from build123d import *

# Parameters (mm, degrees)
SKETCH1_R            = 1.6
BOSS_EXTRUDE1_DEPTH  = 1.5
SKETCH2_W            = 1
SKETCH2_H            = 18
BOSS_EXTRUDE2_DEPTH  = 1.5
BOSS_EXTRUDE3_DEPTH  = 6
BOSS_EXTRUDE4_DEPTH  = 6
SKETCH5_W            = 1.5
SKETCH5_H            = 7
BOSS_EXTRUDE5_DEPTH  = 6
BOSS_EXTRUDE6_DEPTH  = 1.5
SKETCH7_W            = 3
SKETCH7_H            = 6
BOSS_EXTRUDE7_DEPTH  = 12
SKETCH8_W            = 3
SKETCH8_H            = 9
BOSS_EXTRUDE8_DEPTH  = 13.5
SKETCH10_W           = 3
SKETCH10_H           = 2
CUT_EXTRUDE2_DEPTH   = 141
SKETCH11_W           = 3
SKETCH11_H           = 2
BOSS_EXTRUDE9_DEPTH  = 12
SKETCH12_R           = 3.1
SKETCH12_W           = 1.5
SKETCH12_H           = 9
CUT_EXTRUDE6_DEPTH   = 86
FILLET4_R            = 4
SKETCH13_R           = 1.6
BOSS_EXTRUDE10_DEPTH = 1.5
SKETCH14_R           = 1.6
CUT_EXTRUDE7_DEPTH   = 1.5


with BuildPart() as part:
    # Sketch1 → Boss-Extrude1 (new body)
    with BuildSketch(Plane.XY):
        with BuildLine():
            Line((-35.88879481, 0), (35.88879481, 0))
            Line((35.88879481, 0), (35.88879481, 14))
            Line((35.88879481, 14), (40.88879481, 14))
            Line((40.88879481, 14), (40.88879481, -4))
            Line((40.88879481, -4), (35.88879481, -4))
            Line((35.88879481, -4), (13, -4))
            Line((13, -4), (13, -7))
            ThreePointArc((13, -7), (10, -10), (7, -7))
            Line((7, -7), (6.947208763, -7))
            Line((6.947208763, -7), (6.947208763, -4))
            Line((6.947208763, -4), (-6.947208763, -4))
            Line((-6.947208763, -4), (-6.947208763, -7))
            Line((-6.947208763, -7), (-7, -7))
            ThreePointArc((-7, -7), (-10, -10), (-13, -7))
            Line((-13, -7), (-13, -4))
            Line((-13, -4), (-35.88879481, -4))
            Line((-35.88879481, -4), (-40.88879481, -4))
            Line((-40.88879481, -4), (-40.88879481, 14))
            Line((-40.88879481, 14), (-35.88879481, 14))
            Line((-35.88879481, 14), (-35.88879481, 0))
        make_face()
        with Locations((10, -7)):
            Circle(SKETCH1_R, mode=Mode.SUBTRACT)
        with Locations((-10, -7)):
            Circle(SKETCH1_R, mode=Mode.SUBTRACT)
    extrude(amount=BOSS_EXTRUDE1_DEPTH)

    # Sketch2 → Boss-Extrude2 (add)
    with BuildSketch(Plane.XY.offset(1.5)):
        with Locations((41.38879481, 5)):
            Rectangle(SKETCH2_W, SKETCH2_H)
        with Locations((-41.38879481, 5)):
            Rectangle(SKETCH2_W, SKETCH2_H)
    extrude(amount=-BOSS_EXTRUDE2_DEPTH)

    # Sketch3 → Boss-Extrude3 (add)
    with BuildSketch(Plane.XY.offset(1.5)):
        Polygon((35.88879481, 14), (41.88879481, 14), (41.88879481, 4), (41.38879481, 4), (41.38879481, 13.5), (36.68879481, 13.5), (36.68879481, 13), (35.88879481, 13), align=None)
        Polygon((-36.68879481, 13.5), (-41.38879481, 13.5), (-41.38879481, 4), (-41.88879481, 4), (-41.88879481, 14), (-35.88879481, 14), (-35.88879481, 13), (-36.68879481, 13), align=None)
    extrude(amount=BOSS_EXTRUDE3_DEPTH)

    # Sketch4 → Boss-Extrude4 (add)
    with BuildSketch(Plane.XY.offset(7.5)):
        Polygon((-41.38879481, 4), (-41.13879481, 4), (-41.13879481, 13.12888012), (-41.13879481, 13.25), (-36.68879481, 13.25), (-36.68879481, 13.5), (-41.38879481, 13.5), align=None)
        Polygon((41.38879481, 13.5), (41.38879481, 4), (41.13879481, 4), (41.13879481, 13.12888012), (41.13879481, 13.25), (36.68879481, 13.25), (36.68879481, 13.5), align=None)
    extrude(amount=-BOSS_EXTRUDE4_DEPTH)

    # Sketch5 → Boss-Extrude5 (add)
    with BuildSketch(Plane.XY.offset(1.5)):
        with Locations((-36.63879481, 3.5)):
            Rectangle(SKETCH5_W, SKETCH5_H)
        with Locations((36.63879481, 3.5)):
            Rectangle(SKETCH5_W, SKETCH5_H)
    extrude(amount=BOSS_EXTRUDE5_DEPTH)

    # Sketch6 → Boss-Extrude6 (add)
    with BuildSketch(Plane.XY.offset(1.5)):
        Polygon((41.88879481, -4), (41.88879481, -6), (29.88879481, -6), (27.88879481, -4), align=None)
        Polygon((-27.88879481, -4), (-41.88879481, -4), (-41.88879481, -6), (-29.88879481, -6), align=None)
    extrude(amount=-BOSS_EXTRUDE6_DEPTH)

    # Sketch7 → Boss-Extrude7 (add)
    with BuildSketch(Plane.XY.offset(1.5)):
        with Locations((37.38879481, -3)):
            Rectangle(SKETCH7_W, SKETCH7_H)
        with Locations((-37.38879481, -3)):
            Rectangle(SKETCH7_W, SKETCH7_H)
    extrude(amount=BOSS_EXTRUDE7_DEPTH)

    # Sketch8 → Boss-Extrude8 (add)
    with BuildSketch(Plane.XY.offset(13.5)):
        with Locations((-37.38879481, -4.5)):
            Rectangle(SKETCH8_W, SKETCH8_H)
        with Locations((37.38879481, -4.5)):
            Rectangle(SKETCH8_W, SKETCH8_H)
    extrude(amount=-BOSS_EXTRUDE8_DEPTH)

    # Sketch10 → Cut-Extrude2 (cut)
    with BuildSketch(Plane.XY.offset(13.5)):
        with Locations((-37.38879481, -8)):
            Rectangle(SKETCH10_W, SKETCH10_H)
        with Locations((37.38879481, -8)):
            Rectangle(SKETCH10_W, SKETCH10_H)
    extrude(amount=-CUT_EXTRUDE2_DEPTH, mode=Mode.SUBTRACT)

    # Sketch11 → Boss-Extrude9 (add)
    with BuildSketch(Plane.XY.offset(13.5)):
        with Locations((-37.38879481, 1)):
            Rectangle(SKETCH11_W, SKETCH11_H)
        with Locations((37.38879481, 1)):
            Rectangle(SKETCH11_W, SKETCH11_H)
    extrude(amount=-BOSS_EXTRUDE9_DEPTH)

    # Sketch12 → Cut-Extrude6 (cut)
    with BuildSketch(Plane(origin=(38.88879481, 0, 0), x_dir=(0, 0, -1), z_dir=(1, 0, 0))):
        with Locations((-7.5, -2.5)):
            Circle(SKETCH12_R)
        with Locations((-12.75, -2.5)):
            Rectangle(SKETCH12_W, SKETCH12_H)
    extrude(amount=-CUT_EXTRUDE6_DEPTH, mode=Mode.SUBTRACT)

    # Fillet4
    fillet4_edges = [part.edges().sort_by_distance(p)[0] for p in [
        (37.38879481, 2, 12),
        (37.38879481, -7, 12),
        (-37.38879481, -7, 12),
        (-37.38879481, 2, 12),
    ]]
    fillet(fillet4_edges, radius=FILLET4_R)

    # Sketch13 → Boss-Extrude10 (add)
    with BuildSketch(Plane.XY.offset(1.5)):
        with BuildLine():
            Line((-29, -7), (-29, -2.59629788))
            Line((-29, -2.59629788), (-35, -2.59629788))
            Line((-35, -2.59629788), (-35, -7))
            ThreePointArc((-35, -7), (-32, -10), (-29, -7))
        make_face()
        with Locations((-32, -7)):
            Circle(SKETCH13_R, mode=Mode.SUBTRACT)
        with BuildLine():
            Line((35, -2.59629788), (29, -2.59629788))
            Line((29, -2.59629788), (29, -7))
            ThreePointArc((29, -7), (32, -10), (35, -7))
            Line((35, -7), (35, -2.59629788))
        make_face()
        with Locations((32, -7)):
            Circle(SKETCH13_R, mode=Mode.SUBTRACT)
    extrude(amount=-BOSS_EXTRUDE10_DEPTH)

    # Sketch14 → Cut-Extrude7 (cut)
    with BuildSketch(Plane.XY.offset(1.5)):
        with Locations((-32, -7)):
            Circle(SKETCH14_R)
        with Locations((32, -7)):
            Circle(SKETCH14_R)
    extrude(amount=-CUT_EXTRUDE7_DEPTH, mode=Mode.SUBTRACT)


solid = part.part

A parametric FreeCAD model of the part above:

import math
import FreeCAD as App
import Part
import Sketcher

V = App.Vector
Q = App.Units.Quantity


def edges_at(feature, points):
    """Names of the edges that pass closest to the given points."""
    edges = feature.Shape.Edges
    near = lambda p: min(range(len(edges)), key=lambda i: edges[i].distToShape(Part.Vertex(*p))[0])
    return sorted({f"Edge{near(p) + 1}" for p in points})

doc = App.newDocument("Part")
body = doc.addObject("PartDesign::Body", "Body")

sketch1 = body.newObject("Sketcher::SketchObject", "Sketch")
sketch1.AttachmentSupport = (doc.getObject("XY_Plane"), [""])
sketch1.MapMode = "FlatFace"
sketch1.addGeometry([
    Part.LineSegment(V(35.89, 0, 0), V(-35.89, 0, 0)),
    Part.LineSegment(V(-35.89, 0, 0), V(-35.89, 14, 0)),
    Part.LineSegment(V(-35.89, 14, 0), V(-40.89, 14, 0)),
    Part.LineSegment(V(-40.89, 14, 0), V(-40.89, -4, 0)),
    Part.LineSegment(V(-40.89, -4, 0), V(-13, -4, 0)),
    Part.LineSegment(V(-13, -4, 0), V(-13, -7, 0)),
    Part.ArcOfCircle(Part.Circle(V(-10, -7, 0), V(0, 0, 1), 3), math.radians(180), math.radians(360)),
    Part.LineSegment(V(-7, -7, 0), V(-6.95, -7, 0)),
    Part.LineSegment(V(-6.95, -7, 0), V(-6.95, -4, 0)),
    Part.LineSegment(V(-6.95, -4, 0), V(6.95, -4, 0)),
    Part.LineSegment(V(6.95, -4, 0), V(6.95, -7, 0)),
    Part.LineSegment(V(6.95, -7, 0), V(7, -7, 0)),
    Part.ArcOfCircle(Part.Circle(V(10, -7, 0), V(0, 0, 1), 3), math.radians(180), math.radians(360)),
    Part.LineSegment(V(13, -7, 0), V(13, -4, 0)),
    Part.LineSegment(V(13, -4, 0), V(40.89, -4, 0)),
    Part.LineSegment(V(40.89, -4, 0), V(40.89, 14, 0)),
    Part.LineSegment(V(40.89, 14, 0), V(35.89, 14, 0)),
    Part.LineSegment(V(35.89, 14, 0), V(35.89, 0, 0)),
    Part.Circle(V(10, -7, 0), V(0, 0, 1), 1.6),
    Part.Circle(V(-10, -7, 0), V(0, 0, 1), 1.6),
], False)
sketch1.addConstraint([
    Sketcher.Constraint("Coincident", 0, 2, 1, 1),
    Sketcher.Constraint("Coincident", 1, 2, 2, 1),
    Sketcher.Constraint("Coincident", 2, 2, 3, 1),
    Sketcher.Constraint("Coincident", 3, 2, 4, 1),
    Sketcher.Constraint("Coincident", 4, 2, 5, 1),
    Sketcher.Constraint("Tangent", 5, 2, 6, 1),
    Sketcher.Constraint("Coincident", 6, 2, 7, 1),
    Sketcher.Constraint("Coincident", 7, 2, 8, 1),
    Sketcher.Constraint("Coincident", 8, 2, 9, 1),
    Sketcher.Constraint("Coincident", 9, 2, 10, 1),
    Sketcher.Constraint("Coincident", 10, 2, 11, 1),
    Sketcher.Constraint("Coincident", 11, 2, 12, 1),
    Sketcher.Constraint("Tangent", 12, 2, 13, 1),
    Sketcher.Constraint("Coincident", 13, 2, 14, 1),
    Sketcher.Constraint("Coincident", 14, 2, 15, 1),
    Sketcher.Constraint("Coincident", 15, 2, 16, 1),
    Sketcher.Constraint("Coincident", 16, 2, 17, 1),
    Sketcher.Constraint("Coincident", 17, 2, 0, 1),
    Sketcher.Constraint("Horizontal", 0),
    Sketcher.Constraint("Vertical", 1),
    Sketcher.Constraint("Horizontal", 2),
    Sketcher.Constraint("Vertical", 3),
    Sketcher.Constraint("Horizontal", 4),
    Sketcher.Constraint("Vertical", 5),
    Sketcher.Constraint("Horizontal", 7),
    Sketcher.Constraint("Vertical", 8),
    Sketcher.Constraint("Horizontal", 9),
    Sketcher.Constraint("Vertical", 10),
    Sketcher.Constraint("Horizontal", 11),
    Sketcher.Constraint("Vertical", 13),
    Sketcher.Constraint("Horizontal", 14),
    Sketcher.Constraint("Vertical", 15),
    Sketcher.Constraint("Horizontal", 16),
    Sketcher.Constraint("Vertical", 17),
    Sketcher.Constraint("Coincident", 18, 3, 12, 3),
    Sketcher.Constraint("Coincident", 19, 3, 6, 3),
    Sketcher.Constraint("Equal", 6, 12),
    Sketcher.Constraint("Equal", 18, 19),
    Sketcher.Constraint("Symmetric", 0, 2, 17, 2, -1, 1),
    Sketcher.Constraint("Symmetric", 6, 3, 12, 3, -2),
    Sketcher.Constraint("Symmetric", 7, 2, 10, 2, -2),
    Sketcher.Constraint("Symmetric", 3, 2, 14, 2, -2),
    Sketcher.Constraint("Horizontal", 5, 2, 6, 2),
    Sketcher.Constraint("Horizontal", 4, 2, 8, 2),
    Sketcher.Constraint("Horizontal", 2, 2, 15, 2),
    Sketcher.Constraint("Radius", 6, Q("3 mm")),
    Sketcher.Constraint("Diameter", 18, Q("3.2 mm")),
    Sketcher.Constraint("DistanceX", 2, 2, 2, 1, Q("5 mm")),
    Sketcher.Constraint("DistanceY", 1, 1, 1, 2, Q("14 mm")),
    Sketcher.Constraint("DistanceY", 3, 2, 3, 1, Q("18 mm")),
    Sketcher.Constraint("DistanceY", 5, 2, 5, 1, Q("3 mm")),
    Sketcher.Constraint("DistanceX", 6, 3, -1, 1, Q("10 mm")),
    Sketcher.Constraint("DistanceX", 0, 2, 0, 1, Q("71.77759 mm")),
    Sketcher.Constraint("DistanceX", 7, 1, 7, 2, Q("0.052791 mm")),
])
pad1 = body.newObject("PartDesign::Pad", "Pad")
pad1.Profile = sketch1
pad1.Length = 1.5

sketch2 = body.newObject("Sketcher::SketchObject", "Sketch001")
sketch2.AttachmentSupport = (doc.getObject("XY_Plane"), [""])
sketch2.MapMode = "FlatFace"
sketch2.AttachmentOffset = App.Placement(V(0, 0, 1.5), App.Rotation())
sketch2.addGeometry([
    Part.LineSegment(V(40.9, 14, 0), V(40.9, -4, 0)),
    Part.LineSegment(V(40.9, -4, 0), V(41.9, -4, 0)),
    Part.LineSegment(V(41.9, -4, 0), V(41.9, 14, 0)),
    Part.LineSegment(V(41.9, 14, 0), V(40.9, 14, 0)),
    Part.LineSegment(V(-41.9, 14, 0), V(-41.9, -4, 0)),
    Part.LineSegment(V(-41.9, -4, 0), V(-40.9, -4, 0)),
    Part.LineSegment(V(-40.9, -4, 0), V(-40.9, 14, 0)),
    Part.LineSegment(V(-40.9, 14, 0), V(-41.9, 14, 0)),
], False)
sketch2.addConstraint([
    Sketcher.Constraint("Coincident", 0, 2, 1, 1),
    Sketcher.Constraint("Coincident", 1, 2, 2, 1),
    Sketcher.Constraint("Coincident", 2, 2, 3, 1),
    Sketcher.Constraint("Coincident", 3, 2, 0, 1),
    Sketcher.Constraint("Coincident", 4, 2, 5, 1),
    Sketcher.Constraint("Coincident", 5, 2, 6, 1),
    Sketcher.Constraint("Coincident", 6, 2, 7, 1),
    Sketcher.Constraint("Coincident", 7, 2, 4, 1),
    Sketcher.Constraint("Vertical", 0),
    Sketcher.Constraint("Horizontal", 1),
    Sketcher.Constraint("Vertical", 2),
    Sketcher.Constraint("Horizontal", 3),
    Sketcher.Constraint("Vertical", 4),
    Sketcher.Constraint("Horizontal", 5),
    Sketcher.Constraint("Vertical", 6),
    Sketcher.Constraint("Horizontal", 7),
    Sketcher.Constraint("Symmetric", 1, 2, 4, 2, -2),
    Sketcher.Constraint("Symmetric", 3, 2, 6, 2, -2),
    Sketcher.Constraint("DistanceX", 1, 1, 1, 2, Q("1 mm")),
    Sketcher.Constraint("DistanceY", 0, 2, 0, 1, Q("18 mm")),
    Sketcher.Constraint("DistanceY", 0, 2, -1, 1, Q("4 mm")),
    Sketcher.Constraint("DistanceX", 4, 2, 0, 2, Q("82.77759 mm")),
])
pad2 = body.newObject("PartDesign::Pad", "Pad001")
pad2.Profile = sketch2
pad2.Length = 1.5
pad2.Reversed = True

sketch3 = body.newObject("Sketcher::SketchObject", "Sketch002")
sketch3.AttachmentSupport = (doc.getObject("XY_Plane"), [""])
sketch3.MapMode = "FlatFace"
sketch3.AttachmentOffset = App.Placement(V(0, 0, 1.5), App.Rotation())
sketch3.addGeometry([
    Part.LineSegment(V(41.9, 14, 0), V(35.9, 14, 0)),
    Part.LineSegment(V(35.9, 14, 0), V(35.9, 13, 0)),
    Part.LineSegment(V(35.9, 13, 0), V(36.7, 13, 0)),
    Part.LineSegment(V(36.7, 13, 0), V(36.7, 13.5, 0)),
    Part.LineSegment(V(36.7, 13.5, 0), V(41.4, 13.5, 0)),
    Part.LineSegment(V(41.4, 13.5, 0), V(41.4, 4, 0)),
    Part.LineSegment(V(41.4, 4, 0), V(41.9, 4, 0)),
    Part.LineSegment(V(41.9, 4, 0), V(41.9, 14, 0)),
    Part.LineSegment(V(-41.4, 13.5, 0), V(-36.7, 13.5, 0)),
    Part.LineSegment(V(-36.7, 13.5, 0), V(-36.7, 13, 0)),
    Part.LineSegment(V(-36.7, 13, 0), V(-35.9, 13, 0)),
    Part.LineSegment(V(-35.9, 13, 0), V(-35.9, 14, 0)),
    Part.LineSegment(V(-35.9, 14, 0), V(-41.9, 14, 0)),
    Part.LineSegment(V(-41.9, 14, 0), V(-41.9, 4, 0)),
    Part.LineSegment(V(-41.9, 4, 0), V(-41.4, 4, 0)),
    Part.LineSegment(V(-41.4, 4, 0), V(-41.4, 13.5, 0)),
], False)
sketch3.addConstraint([
    Sketcher.Constraint("Coincident", 0, 2, 1, 1),
    Sketcher.Constraint("Coincident", 1, 2, 2, 1),
    Sketcher.Constraint("Coincident", 2, 2, 3, 1),
    Sketcher.Constraint("Coincident", 3, 2, 4, 1),
    Sketcher.Constraint("Coincident", 4, 2, 5, 1),
    Sketcher.Constraint("Coincident", 5, 2, 6, 1),
    Sketcher.Constraint("Coincident", 6, 2, 7, 1),
    Sketcher.Constraint("Coincident", 7, 2, 0, 1),
    Sketcher.Constraint("Coincident", 8, 2, 9, 1),
    Sketcher.Constraint("Coincident", 9, 2, 10, 1),
    Sketcher.Constraint("Coincident", 10, 2, 11, 1),
    Sketcher.Constraint("Coincident", 11, 2, 12, 1),
    Sketcher.Constraint("Coincident", 12, 2, 13, 1),
    Sketcher.Constraint("Coincident", 13, 2, 14, 1),
    Sketcher.Constraint("Coincident", 14, 2, 15, 1),
    Sketcher.Constraint("Coincident", 15, 2, 8, 1),
    Sketcher.Constraint("Horizontal", 0),
    Sketcher.Constraint("Vertical", 1),
    Sketcher.Constraint("Horizontal", 2),
    Sketcher.Constraint("Vertical", 3),
    Sketcher.Constraint("Horizontal", 4),
    Sketcher.Constraint("Vertical", 5),
    Sketcher.Constraint("Horizontal", 6),
    Sketcher.Constraint("Vertical", 7),
    Sketcher.Constraint("Horizontal", 8),
    Sketcher.Constraint("Vertical", 9),
    Sketcher.Constraint("Horizontal", 10),
    Sketcher.Constraint("Vertical", 11),
    Sketcher.Constraint("Horizontal", 12),
    Sketcher.Constraint("Vertical", 13),
    Sketcher.Constraint("Horizontal", 14),
    Sketcher.Constraint("Vertical", 15),
    Sketcher.Constraint("Symmetric", 3, 2, 8, 2, -2),
    Sketcher.Constraint("Symmetric", 1, 2, 10, 2, -2),
    Sketcher.Constraint("Symmetric", 7, 2, 12, 2, -2),
    Sketcher.Constraint("Symmetric", 5, 2, 14, 2, -2),
    Sketcher.Constraint("Equal", 14, 3),
    Sketcher.Constraint("DistanceX", 0, 2, 0, 1, Q("6 mm")),
    Sketcher.Constraint("DistanceY", 1, 2, 1, 1, Q("1 mm")),
    Sketcher.Constraint("DistanceY", 7, 1, 7, 2, Q("10 mm")),
    Sketcher.Constraint("DistanceX", 2, 1, 2, 2, Q("0.8 mm")),
    Sketcher.Constraint("DistanceX", 4, 1, 4, 2, Q("4.7 mm")),
    Sketcher.Constraint("DistanceY", -1, 1, 0, 2, Q("14 mm")),
    Sketcher.Constraint("DistanceX", 8, 2, 0, 2, Q("72.57759 mm")),
])
pad3 = body.newObject("PartDesign::Pad", "Pad002")
pad3.Profile = sketch3
pad3.Length = 6

sketch4 = body.newObject("Sketcher::SketchObject", "Sketch003")
sketch4.AttachmentSupport = (doc.getObject("XY_Plane"), [""])
sketch4.MapMode = "FlatFace"
sketch4.AttachmentOffset = App.Placement(V(0, 0, 7.5), App.Rotation())
sketch4.addGeometry([
    Part.LineSegment(V(-41.39, 4, 0), V(-41.14, 4, 0)),
    Part.LineSegment(V(-41.14, 4, 0), V(-41.14, 13.25, 0)),
    Part.LineSegment(V(-41.14, 13.25, 0), V(-36.69, 13.25, 0)),
    Part.LineSegment(V(-36.69, 13.25, 0), V(-36.69, 13.5, 0)),
    Part.LineSegment(V(-36.69, 13.5, 0), V(-41.39, 13.5, 0)),
    Part.LineSegment(V(-41.39, 13.5, 0), V(-41.39, 4, 0)),
    Part.LineSegment(V(41.39, 4, 0), V(41.39, 13.5, 0)),
    Part.LineSegment(V(41.39, 13.5, 0), V(36.69, 13.5, 0)),
    Part.LineSegment(V(36.69, 13.5, 0), V(36.69, 13.25, 0)),
    Part.LineSegment(V(36.69, 13.25, 0), V(41.14, 13.25, 0)),
    Part.LineSegment(V(41.14, 13.25, 0), V(41.14, 4, 0)),
    Part.LineSegment(V(41.14, 4, 0), V(41.39, 4, 0)),
], False)
sketch4.addConstraint([
    Sketcher.Constraint("Coincident", 0, 2, 1, 1),
    Sketcher.Constraint("Coincident", 1, 2, 2, 1),
    Sketcher.Constraint("Coincident", 2, 2, 3, 1),
    Sketcher.Constraint("Coincident", 3, 2, 4, 1),
    Sketcher.Constraint("Coincident", 4, 2, 5, 1),
    Sketcher.Constraint("Coincident", 5, 2, 0, 1),
    Sketcher.Constraint("Coincident", 6, 2, 7, 1),
    Sketcher.Constraint("Coincident", 7, 2, 8, 1),
    Sketcher.Constraint("Coincident", 8, 2, 9, 1),
    Sketcher.Constraint("Coincident", 9, 2, 10, 1),
    Sketcher.Constraint("Coincident", 10, 2, 11, 1),
    Sketcher.Constraint("Coincident", 11, 2, 6, 1),
    Sketcher.Constraint("Horizontal", 0),
    Sketcher.Constraint("Vertical", 1),
    Sketcher.Constraint("Horizontal", 2),
    Sketcher.Constraint("Vertical", 3),
    Sketcher.Constraint("Horizontal", 4),
    Sketcher.Constraint("Vertical", 5),
    Sketcher.Constraint("Vertical", 6),
    Sketcher.Constraint("Horizontal", 7),
    Sketcher.Constraint("Vertical", 8),
    Sketcher.Constraint("Horizontal", 9),
    Sketcher.Constraint("Vertical", 10),
    Sketcher.Constraint("Horizontal", 11),
    Sketcher.Constraint("Symmetric", 4, 2, 6, 2, -2),
    Sketcher.Constraint("Symmetric", 2, 2, 8, 2, -2),
    Sketcher.Constraint("Symmetric", 0, 2, 10, 2, -2),
    Sketcher.Constraint("Equal", 11, 3),
    Sketcher.Constraint("DistanceX", 4, 2, 4, 1, Q("4.7 mm")),
    Sketcher.Constraint("DistanceY", 5, 2, 5, 1, Q("9.5 mm")),
    Sketcher.Constraint("DistanceY", -1, 1, 0, 2, Q("4 mm")),
    Sketcher.Constraint("DistanceX", 0, 1, 0, 2, Q("0.25 mm")),
    Sketcher.Constraint("DistanceX", 3, 2, 6, 2, Q("78.07759 mm")),
])
pad4 = body.newObject("PartDesign::Pad", "Pad003")
pad4.Profile = sketch4
pad4.Length = 6
pad4.Reversed = True

sketch5 = body.newObject("Sketcher::SketchObject", "Sketch004")
sketch5.AttachmentSupport = (doc.getObject("XY_Plane"), [""])
sketch5.MapMode = "FlatFace"
sketch5.AttachmentOffset = App.Placement(V(0, 0, 1.5), App.Rotation())
sketch5.addGeometry([
    Part.LineSegment(V(-37.4, 7, 0), V(-37.4, 0, 0)),
    Part.LineSegment(V(-37.4, 0, 0), V(-35.9, 0, 0)),
    Part.LineSegment(V(-35.9, 0, 0), V(-35.9, 7, 0)),
    Part.LineSegment(V(-35.9, 7, 0), V(-37.4, 7, 0)),
    Part.LineSegment(V(35.9, 7, 0), V(35.9, 0, 0)),
    Part.LineSegment(V(35.9, 0, 0), V(37.4, 0, 0)),
    Part.LineSegment(V(37.4, 0, 0), V(37.4, 7, 0)),
    Part.LineSegment(V(37.4, 7, 0), V(35.9, 7, 0)),
], False)
sketch5.addConstraint([
    Sketcher.Constraint("Coincident", 0, 2, 1, 1),
    Sketcher.Constraint("Coincident", 1, 2, 2, 1),
    Sketcher.Constraint("Coincident", 2, 2, 3, 1),
    Sketcher.Constraint("Coincident", 3, 2, 0, 1),
    Sketcher.Constraint("Coincident", 4, 2, 5, 1),
    Sketcher.Constraint("Coincident", 5, 2, 6, 1),
    Sketcher.Constraint("Coincident", 6, 2, 7, 1),
    Sketcher.Constraint("Coincident", 7, 2, 4, 1),
    Sketcher.Constraint("Vertical", 0),
    Sketcher.Constraint("Horizontal", 1),
    Sketcher.Constraint("Vertical", 2),
    Sketcher.Constraint("Horizontal", 3),
    Sketcher.Constraint("Vertical", 4),
    Sketcher.Constraint("Horizontal", 5),
    Sketcher.Constraint("Vertical", 6),
    Sketcher.Constraint("Horizontal", 7),
    Sketcher.Constraint("Symmetric", 1, 2, 4, 2, -1, 1),
    Sketcher.Constraint("Symmetric", 0, 2, 5, 2, -2),
    Sketcher.Constraint("Horizontal", 3, 2, 6, 2),
    Sketcher.Constraint("DistanceY", 0, 2, 0, 1, Q("7 mm")),
    Sketcher.Constraint("DistanceX", 1, 1, 1, 2, Q("1.5 mm")),
    Sketcher.Constraint("DistanceX", 1, 2, 4, 2, Q("71.77759 mm")),
])
pad5 = body.newObject("PartDesign::Pad", "Pad004")
pad5.Profile = sketch5
pad5.Length = 6

sketch6 = body.newObject("Sketcher::SketchObject", "Sketch005")
sketch6.AttachmentSupport = (doc.getObject("XY_Plane"), [""])
sketch6.MapMode = "FlatFace"
sketch6.AttachmentOffset = App.Placement(V(0, 0, 1.5), App.Rotation())
sketch6.addGeometry([
    Part.LineSegment(V(41.9, -6, 0), V(41.9, -4, 0)),
    Part.LineSegment(V(41.9, -4, 0), V(27.9, -4, 0)),
    Part.LineSegment(V(27.9, -4, 0), V(29.9, -6, 0)),
    Part.LineSegment(V(29.9, -6, 0), V(41.9, -6, 0)),
    Part.LineSegment(V(-27.9, -4, 0), V(-41.9, -4, 0)),
    Part.LineSegment(V(-41.9, -4, 0), V(-41.9, -6, 0)),
    Part.LineSegment(V(-41.9, -6, 0), V(-29.9, -6, 0)),
    Part.LineSegment(V(-29.9, -6, 0), V(-27.9, -4, 0)),
], False)
sketch6.addConstraint([
    Sketcher.Constraint("Coincident", 0, 2, 1, 1),
    Sketcher.Constraint("Coincident", 1, 2, 2, 1),
    Sketcher.Constraint("Coincident", 2, 2, 3, 1),
    Sketcher.Constraint("Coincident", 3, 2, 0, 1),
    Sketcher.Constraint("Coincident", 4, 2, 5, 1),
    Sketcher.Constraint("Coincident", 5, 2, 6, 1),
    Sketcher.Constraint("Coincident", 6, 2, 7, 1),
    Sketcher.Constraint("Coincident", 7, 2, 4, 1),
    Sketcher.Constraint("Vertical", 0),
    Sketcher.Constraint("Horizontal", 1),
    Sketcher.Constraint("Horizontal", 3),
    Sketcher.Constraint("Horizontal", 4),
    Sketcher.Constraint("Vertical", 5),
    Sketcher.Constraint("Horizontal", 6),
    Sketcher.Constraint("Symmetric", 0, 2, 4, 2, -2),
    Sketcher.Constraint("Symmetric", 2, 2, 6, 2, -2),
    Sketcher.Constraint("Perpendicular", 2, 7),
    Sketcher.Constraint("Equal", 1, 4),
    Sketcher.Constraint("DistanceX", 1, 2, 1, 1, Q("14 mm")),
    Sketcher.Constraint("DistanceX", 3, 1, 3, 2, Q("12 mm")),
    Sketcher.Constraint("DistanceY", 0, 2, -1, 1, Q("4 mm")),
    Sketcher.Constraint("DistanceX", 4, 2, 1, 2, Q("69.77759 mm")),
])
pad6 = body.newObject("PartDesign::Pad", "Pad005")
pad6.Profile = sketch6
pad6.Length = 1.5
pad6.Reversed = True

sketch7 = body.newObject("Sketcher::SketchObject", "Sketch006")
sketch7.AttachmentSupport = (doc.getObject("XY_Plane"), [""])
sketch7.MapMode = "FlatFace"
sketch7.AttachmentOffset = App.Placement(V(0, 0, 1.5), App.Rotation())
sketch7.addGeometry([
    Part.LineSegment(V(35.9, 0, 0), V(35.9, -6, 0)),
    Part.LineSegment(V(35.9, -6, 0), V(38.9, -6, 0)),
    Part.LineSegment(V(38.9, -6, 0), V(38.9, 0, 0)),
    Part.LineSegment(V(38.9, 0, 0), V(35.9, 0, 0)),
    Part.LineSegment(V(-38.9, 0, 0), V(-38.9, -6, 0)),
    Part.LineSegment(V(-38.9, -6, 0), V(-35.9, -6, 0)),
    Part.LineSegment(V(-35.9, -6, 0), V(-35.9, 0, 0)),
    Part.LineSegment(V(-35.9, 0, 0), V(-38.9, 0, 0)),
], False)
sketch7.addConstraint([
    Sketcher.Constraint("Coincident", 0, 2, 1, 1),
    Sketcher.Constraint("Coincident", 1, 2, 2, 1),
    Sketcher.Constraint("Coincident", 2, 2, 3, 1),
    Sketcher.Constraint("Coincident", 3, 2, 0, 1),
    Sketcher.Constraint("Coincident", 4, 2, 5, 1),
    Sketcher.Constraint("Coincident", 5, 2, 6, 1),
    Sketcher.Constraint("Coincident", 6, 2, 7, 1),
    Sketcher.Constraint("Coincident", 7, 2, 4, 1),
    Sketcher.Constraint("Vertical", 0),
    Sketcher.Constraint("Horizontal", 1),
    Sketcher.Constraint("Vertical", 2),
    Sketcher.Constraint("Horizontal", 3),
    Sketcher.Constraint("Vertical", 4),
    Sketcher.Constraint("Horizontal", 5),
    Sketcher.Constraint("Vertical", 6),
    Sketcher.Constraint("Horizontal", 7),
    Sketcher.Constraint("Symmetric", 3, 2, 6, 2, -1, 1),
    Sketcher.Constraint("Symmetric", 1, 2, 4, 2, -2),
    Sketcher.Constraint("PointOnObject", 2, 2, -1),
    Sketcher.Constraint("DistanceX", 1, 1, 1, 2, Q("3 mm")),
    Sketcher.Constraint("DistanceY", 0, 2, 0, 1, Q("6 mm")),
    Sketcher.Constraint("DistanceX", 4, 2, 0, 2, Q("74.77759 mm")),
])
pad7 = body.newObject("PartDesign::Pad", "Pad006")
pad7.Profile = sketch7
pad7.Length = 12

sketch8 = body.newObject("Sketcher::SketchObject", "Sketch007")
sketch8.AttachmentSupport = (doc.getObject("XY_Plane"), [""])
sketch8.MapMode = "FlatFace"
sketch8.AttachmentOffset = App.Placement(V(0, 0, 13.5), App.Rotation())
sketch8.addGeometry([
    Part.LineSegment(V(-38.9, 0, 0), V(-38.9, -9, 0)),
    Part.LineSegment(V(-38.9, -9, 0), V(-35.9, -9, 0)),
    Part.LineSegment(V(-35.9, -9, 0), V(-35.9, 0, 0)),
    Part.LineSegment(V(-35.9, 0, 0), V(-38.9, 0, 0)),
    Part.LineSegment(V(35.9, 0, 0), V(35.9, -9, 0)),
    Part.LineSegment(V(35.9, -9, 0), V(38.9, -9, 0)),
    Part.LineSegment(V(38.9, -9, 0), V(38.9, 0, 0)),
    Part.LineSegment(V(38.9, 0, 0), V(35.9, 0, 0)),
], False)
sketch8.addConstraint([
    Sketcher.Constraint("Coincident", 0, 2, 1, 1),
    Sketcher.Constraint("Coincident", 1, 2, 2, 1),
    Sketcher.Constraint("Coincident", 2, 2, 3, 1),
    Sketcher.Constraint("Coincident", 3, 2, 0, 1),
    Sketcher.Constraint("Coincident", 4, 2, 5, 1),
    Sketcher.Constraint("Coincident", 5, 2, 6, 1),
    Sketcher.Constraint("Coincident", 6, 2, 7, 1),
    Sketcher.Constraint("Coincident", 7, 2, 4, 1),
    Sketcher.Constraint("Vertical", 0),
    Sketcher.Constraint("Horizontal", 1),
    Sketcher.Constraint("Vertical", 2),
    Sketcher.Constraint("Horizontal", 3),
    Sketcher.Constraint("Vertical", 4),
    Sketcher.Constraint("Horizontal", 5),
    Sketcher.Constraint("Vertical", 6),
    Sketcher.Constraint("Horizontal", 7),
    Sketcher.Constraint("Symmetric", 3, 2, 6, 2, -1, 1),
    Sketcher.Constraint("Symmetric", 1, 2, 4, 2, -2),
    Sketcher.Constraint("PointOnObject", 2, 2, -1),
    Sketcher.Constraint("DistanceX", 1, 1, 1, 2, Q("3 mm")),
    Sketcher.Constraint("DistanceY", 0, 2, 0, 1, Q("9 mm")),
    Sketcher.Constraint("DistanceX", 1, 2, 4, 2, Q("71.77759 mm")),
])
pad8 = body.newObject("PartDesign::Pad", "Pad007")
pad8.Profile = sketch8
pad8.Length = 13.5
pad8.Reversed = True

sketch9 = body.newObject("Sketcher::SketchObject", "Sketch008")
sketch9.AttachmentSupport = (doc.getObject("XY_Plane"), [""])
sketch9.MapMode = "FlatFace"
sketch9.AttachmentOffset = App.Placement(V(0, 0, 13.5), App.Rotation())
sketch9.addGeometry([
    Part.LineSegment(V(-38.9, -7, 0), V(-38.9, -9, 0)),
    Part.LineSegment(V(-38.9, -9, 0), V(-35.9, -9, 0)),
    Part.LineSegment(V(-35.9, -9, 0), V(-35.9, -7, 0)),
    Part.LineSegment(V(-35.9, -7, 0), V(-38.9, -7, 0)),
    Part.LineSegment(V(35.9, -7, 0), V(35.9, -9, 0)),
    Part.LineSegment(V(35.9, -9, 0), V(38.9, -9, 0)),
    Part.LineSegment(V(38.9, -9, 0), V(38.9, -7, 0)),
    Part.LineSegment(V(38.9, -7, 0), V(35.9, -7, 0)),
], False)
sketch9.addConstraint([
    Sketcher.Constraint("Coincident", 0, 2, 1, 1),
    Sketcher.Constraint("Coincident", 1, 2, 2, 1),
    Sketcher.Constraint("Coincident", 2, 2, 3, 1),
    Sketcher.Constraint("Coincident", 3, 2, 0, 1),
    Sketcher.Constraint("Coincident", 4, 2, 5, 1),
    Sketcher.Constraint("Coincident", 5, 2, 6, 1),
    Sketcher.Constraint("Coincident", 6, 2, 7, 1),
    Sketcher.Constraint("Coincident", 7, 2, 4, 1),
    Sketcher.Constraint("Vertical", 0),
    Sketcher.Constraint("Horizontal", 1),
    Sketcher.Constraint("Vertical", 2),
    Sketcher.Constraint("Horizontal", 3),
    Sketcher.Constraint("Vertical", 4),
    Sketcher.Constraint("Horizontal", 5),
    Sketcher.Constraint("Vertical", 6),
    Sketcher.Constraint("Horizontal", 7),
    Sketcher.Constraint("Symmetric", 1, 2, 4, 2, -2),
    Sketcher.Constraint("Symmetric", 3, 2, 6, 2, -2),
    Sketcher.Constraint("DistanceX", 1, 1, 1, 2, Q("3 mm")),
    Sketcher.Constraint("DistanceY", 0, 2, 0, 1, Q("2 mm")),
    Sketcher.Constraint("DistanceY", 0, 2, -1, 1, Q("9 mm")),
    Sketcher.Constraint("DistanceX", 1, 2, 4, 2, Q("71.77759 mm")),
])
pocket1 = body.newObject("PartDesign::Pocket", "Pocket")
pocket1.Profile = sketch9
pocket1.Length = 141

sketch10 = body.newObject("Sketcher::SketchObject", "Sketch009")
sketch10.AttachmentSupport = (doc.getObject("XY_Plane"), [""])
sketch10.MapMode = "FlatFace"
sketch10.AttachmentOffset = App.Placement(V(0, 0, 13.5), App.Rotation())
sketch10.addGeometry([
    Part.LineSegment(V(-38.9, 2, 0), V(-38.9, 0, 0)),
    Part.LineSegment(V(-38.9, 0, 0), V(-35.9, 0, 0)),
    Part.LineSegment(V(-35.9, 0, 0), V(-35.9, 2, 0)),
    Part.LineSegment(V(-35.9, 2, 0), V(-38.9, 2, 0)),
    Part.LineSegment(V(35.9, 2, 0), V(35.9, 0, 0)),
    Part.LineSegment(V(35.9, 0, 0), V(38.9, 0, 0)),
    Part.LineSegment(V(38.9, 0, 0), V(38.9, 2, 0)),
    Part.LineSegment(V(38.9, 2, 0), V(35.9, 2, 0)),
], False)
sketch10.addConstraint([
    Sketcher.Constraint("Coincident", 0, 2, 1, 1),
    Sketcher.Constraint("Coincident", 1, 2, 2, 1),
    Sketcher.Constraint("Coincident", 2, 2, 3, 1),
    Sketcher.Constraint("Coincident", 3, 2, 0, 1),
    Sketcher.Constraint("Coincident", 4, 2, 5, 1),
    Sketcher.Constraint("Coincident", 5, 2, 6, 1),
    Sketcher.Constraint("Coincident", 6, 2, 7, 1),
    Sketcher.Constraint("Coincident", 7, 2, 4, 1),
    Sketcher.Constraint("Vertical", 0),
    Sketcher.Constraint("Horizontal", 1),
    Sketcher.Constraint("Vertical", 2),
    Sketcher.Constraint("Horizontal", 3),
    Sketcher.Constraint("Vertical", 4),
    Sketcher.Constraint("Horizontal", 5),
    Sketcher.Constraint("Vertical", 6),
    Sketcher.Constraint("Horizontal", 7),
    Sketcher.Constraint("Symmetric", 1, 2, 4, 2, -1, 1),
    Sketcher.Constraint("Symmetric", 0, 2, 5, 2, -2),
    Sketcher.Constraint("Horizontal", 3, 2, 6, 2),
    Sketcher.Constraint("DistanceX", 1, 1, 1, 2, Q("3 mm")),
    Sketcher.Constraint("DistanceY", 0, 2, 0, 1, Q("2 mm")),
    Sketcher.Constraint("DistanceX", 1, 2, 4, 2, Q("71.77759 mm")),
])
pad9 = body.newObject("PartDesign::Pad", "Pad008")
pad9.Profile = sketch10
pad9.Length = 12
pad9.Reversed = True

sketch11 = body.newObject("Sketcher::SketchObject", "Sketch010")
sketch11.AttachmentSupport = (doc.getObject("YZ_Plane"), [""])
sketch11.MapMode = "FlatFace"
sketch11.AttachmentOffset = App.Placement(V(0, 0, 38.888795), App.Rotation())
sketch11.addGeometry([
    Part.Circle(V(-2.5, 7.5, 0), V(0, 0, 1), 3.1),
    Part.LineSegment(V(2, 13.5, 0), V(-7, 13.5, 0)),
    Part.LineSegment(V(-7, 13.5, 0), V(-7, 12, 0)),
    Part.LineSegment(V(-7, 12, 0), V(2, 12, 0)),
    Part.LineSegment(V(2, 12, 0), V(2, 13.5, 0)),
], False)
sketch11.addConstraint([
    Sketcher.Constraint("Coincident", 1, 2, 2, 1),
    Sketcher.Constraint("Coincident", 2, 2, 3, 1),
    Sketcher.Constraint("Coincident", 3, 2, 4, 1),
    Sketcher.Constraint("Coincident", 4, 2, 1, 1),
    Sketcher.Constraint("Horizontal", 1),
    Sketcher.Constraint("Vertical", 2),
    Sketcher.Constraint("Horizontal", 3),
    Sketcher.Constraint("Vertical", 4),
    Sketcher.Constraint("Diameter", 0, Q("6.2 mm")),
    Sketcher.Constraint("DistanceX", 1, 2, 1, 1, Q("9 mm")),
    Sketcher.Constraint("DistanceY", 2, 2, 2, 1, Q("1.5 mm")),
    Sketcher.Constraint("DistanceX", 1, 2, -1, 1, Q("7 mm")),
    Sketcher.Constraint("DistanceY", -1, 1, 2, 2, Q("12 mm")),
    Sketcher.Constraint("DistanceY", 0, 3, 1, 2, Q("6 mm")),
    Sketcher.Constraint("DistanceX", 0, 3, -1, 1, Q("2.5 mm")),
])
pocket2 = body.newObject("PartDesign::Pocket", "Pocket001")
pocket2.Profile = sketch11
pocket2.Length = 86
doc.recompute()

fillet = body.newObject("PartDesign::Fillet", "Fillet")
fillet.Base = (pocket2, edges_at(pocket2, [
    (37.389, 2, 12),
    (37.389, -7, 12),
    (-37.389, -7, 12),
    (-37.389, 2, 12),
]))
fillet.Radius = 4

sketch12 = body.newObject("Sketcher::SketchObject", "Sketch011")
sketch12.AttachmentSupport = (doc.getObject("XY_Plane"), [""])
sketch12.MapMode = "FlatFace"
sketch12.AttachmentOffset = App.Placement(V(0, 0, 1.5), App.Rotation())
sketch12.addGeometry([
    Part.LineSegment(V(-29, -7, 0), V(-29, -2.6, 0)),
    Part.LineSegment(V(-29, -2.6, 0), V(-35, -2.6, 0)),
    Part.LineSegment(V(-35, -2.6, 0), V(-35, -7, 0)),
    Part.ArcOfCircle(Part.Circle(V(-32, -7, 0), V(0, 0, 1), 3), math.radians(180), math.radians(360)),
    Part.Circle(V(-32, -7, 0), V(0, 0, 1), 1.6),
    Part.LineSegment(V(35, -2.6, 0), V(29, -2.6, 0)),
    Part.LineSegment(V(29, -2.6, 0), V(29, -7, 0)),
    Part.ArcOfCircle(Part.Circle(V(32, -7, 0), V(0, 0, 1), 3), math.radians(180), math.radians(360)),
    Part.LineSegment(V(35, -7, 0), V(35, -2.6, 0)),
    Part.Circle(V(32, -7, 0), V(0, 0, 1), 1.6),
], False)
sketch12.addConstraint([
    Sketcher.Constraint("Coincident", 0, 2, 1, 1),
    Sketcher.Constraint("Coincident", 1, 2, 2, 1),
    Sketcher.Constraint("Tangent", 2, 2, 3, 1),
    Sketcher.Constraint("Tangent", 3, 2, 0, 1),
    Sketcher.Constraint("Coincident", 5, 2, 6, 1),
    Sketcher.Constraint("Tangent", 6, 2, 7, 1),
    Sketcher.Constraint("Tangent", 7, 2, 8, 1),
    Sketcher.Constraint("Coincident", 8, 2, 5, 1),
    Sketcher.Constraint("Vertical", 0),
    Sketcher.Constraint("Horizontal", 1),
    Sketcher.Constraint("Vertical", 2),
    Sketcher.Constraint("Horizontal", 5),
    Sketcher.Constraint("Vertical", 6),
    Sketcher.Constraint("Vertical", 8),
    Sketcher.Constraint("Coincident", 4, 3, 3, 3),
    Sketcher.Constraint("Coincident", 9, 3, 7, 3),
    Sketcher.Constraint("Equal", 3, 7),
    Sketcher.Constraint("Equal", 4, 9),
    Sketcher.Constraint("Symmetric", 3, 3, 7, 3, -2),
    Sketcher.Constraint("Horizontal", 1, 2, 5, 2),
    Sketcher.Constraint("Radius", 3, Q("3 mm")),
    Sketcher.Constraint("Diameter", 4, Q("3.2 mm")),
    Sketcher.Constraint("DistanceX", 3, 3, -1, 1, Q("32 mm")),
    Sketcher.Constraint("DistanceY", 3, 3, -1, 1, Q("7 mm")),
    Sketcher.Constraint("DistanceY", 0, 1, 0, 2, Q("4.403702 mm")),
])
pad10 = body.newObject("PartDesign::Pad", "Pad009")
pad10.Profile = sketch12
pad10.Length = 1.5
pad10.Reversed = True

sketch13 = body.newObject("Sketcher::SketchObject", "Sketch012")
sketch13.AttachmentSupport = (doc.getObject("XY_Plane"), [""])
sketch13.MapMode = "FlatFace"
sketch13.AttachmentOffset = App.Placement(V(0, 0, 1.5), App.Rotation())
sketch13.addGeometry([
    Part.Circle(V(-32, -7, 0), V(0, 0, 1), 1.6),
    Part.Circle(V(32, -7, 0), V(0, 0, 1), 1.6),
], False)
sketch13.addConstraint([
    Sketcher.Constraint("Equal", 0, 1),
    Sketcher.Constraint("Symmetric", 0, 3, 1, 3, -2),
    Sketcher.Constraint("Diameter", 0, Q("3.2 mm")),
    Sketcher.Constraint("DistanceX", 0, 3, -1, 1, Q("32 mm")),
    Sketcher.Constraint("DistanceY", 0, 3, -1, 1, Q("7 mm")),
])
pocket3 = body.newObject("PartDesign::Pocket", "Pocket002")
pocket3.Profile = sketch13
pocket3.Length = 1.5

doc.recompute()
